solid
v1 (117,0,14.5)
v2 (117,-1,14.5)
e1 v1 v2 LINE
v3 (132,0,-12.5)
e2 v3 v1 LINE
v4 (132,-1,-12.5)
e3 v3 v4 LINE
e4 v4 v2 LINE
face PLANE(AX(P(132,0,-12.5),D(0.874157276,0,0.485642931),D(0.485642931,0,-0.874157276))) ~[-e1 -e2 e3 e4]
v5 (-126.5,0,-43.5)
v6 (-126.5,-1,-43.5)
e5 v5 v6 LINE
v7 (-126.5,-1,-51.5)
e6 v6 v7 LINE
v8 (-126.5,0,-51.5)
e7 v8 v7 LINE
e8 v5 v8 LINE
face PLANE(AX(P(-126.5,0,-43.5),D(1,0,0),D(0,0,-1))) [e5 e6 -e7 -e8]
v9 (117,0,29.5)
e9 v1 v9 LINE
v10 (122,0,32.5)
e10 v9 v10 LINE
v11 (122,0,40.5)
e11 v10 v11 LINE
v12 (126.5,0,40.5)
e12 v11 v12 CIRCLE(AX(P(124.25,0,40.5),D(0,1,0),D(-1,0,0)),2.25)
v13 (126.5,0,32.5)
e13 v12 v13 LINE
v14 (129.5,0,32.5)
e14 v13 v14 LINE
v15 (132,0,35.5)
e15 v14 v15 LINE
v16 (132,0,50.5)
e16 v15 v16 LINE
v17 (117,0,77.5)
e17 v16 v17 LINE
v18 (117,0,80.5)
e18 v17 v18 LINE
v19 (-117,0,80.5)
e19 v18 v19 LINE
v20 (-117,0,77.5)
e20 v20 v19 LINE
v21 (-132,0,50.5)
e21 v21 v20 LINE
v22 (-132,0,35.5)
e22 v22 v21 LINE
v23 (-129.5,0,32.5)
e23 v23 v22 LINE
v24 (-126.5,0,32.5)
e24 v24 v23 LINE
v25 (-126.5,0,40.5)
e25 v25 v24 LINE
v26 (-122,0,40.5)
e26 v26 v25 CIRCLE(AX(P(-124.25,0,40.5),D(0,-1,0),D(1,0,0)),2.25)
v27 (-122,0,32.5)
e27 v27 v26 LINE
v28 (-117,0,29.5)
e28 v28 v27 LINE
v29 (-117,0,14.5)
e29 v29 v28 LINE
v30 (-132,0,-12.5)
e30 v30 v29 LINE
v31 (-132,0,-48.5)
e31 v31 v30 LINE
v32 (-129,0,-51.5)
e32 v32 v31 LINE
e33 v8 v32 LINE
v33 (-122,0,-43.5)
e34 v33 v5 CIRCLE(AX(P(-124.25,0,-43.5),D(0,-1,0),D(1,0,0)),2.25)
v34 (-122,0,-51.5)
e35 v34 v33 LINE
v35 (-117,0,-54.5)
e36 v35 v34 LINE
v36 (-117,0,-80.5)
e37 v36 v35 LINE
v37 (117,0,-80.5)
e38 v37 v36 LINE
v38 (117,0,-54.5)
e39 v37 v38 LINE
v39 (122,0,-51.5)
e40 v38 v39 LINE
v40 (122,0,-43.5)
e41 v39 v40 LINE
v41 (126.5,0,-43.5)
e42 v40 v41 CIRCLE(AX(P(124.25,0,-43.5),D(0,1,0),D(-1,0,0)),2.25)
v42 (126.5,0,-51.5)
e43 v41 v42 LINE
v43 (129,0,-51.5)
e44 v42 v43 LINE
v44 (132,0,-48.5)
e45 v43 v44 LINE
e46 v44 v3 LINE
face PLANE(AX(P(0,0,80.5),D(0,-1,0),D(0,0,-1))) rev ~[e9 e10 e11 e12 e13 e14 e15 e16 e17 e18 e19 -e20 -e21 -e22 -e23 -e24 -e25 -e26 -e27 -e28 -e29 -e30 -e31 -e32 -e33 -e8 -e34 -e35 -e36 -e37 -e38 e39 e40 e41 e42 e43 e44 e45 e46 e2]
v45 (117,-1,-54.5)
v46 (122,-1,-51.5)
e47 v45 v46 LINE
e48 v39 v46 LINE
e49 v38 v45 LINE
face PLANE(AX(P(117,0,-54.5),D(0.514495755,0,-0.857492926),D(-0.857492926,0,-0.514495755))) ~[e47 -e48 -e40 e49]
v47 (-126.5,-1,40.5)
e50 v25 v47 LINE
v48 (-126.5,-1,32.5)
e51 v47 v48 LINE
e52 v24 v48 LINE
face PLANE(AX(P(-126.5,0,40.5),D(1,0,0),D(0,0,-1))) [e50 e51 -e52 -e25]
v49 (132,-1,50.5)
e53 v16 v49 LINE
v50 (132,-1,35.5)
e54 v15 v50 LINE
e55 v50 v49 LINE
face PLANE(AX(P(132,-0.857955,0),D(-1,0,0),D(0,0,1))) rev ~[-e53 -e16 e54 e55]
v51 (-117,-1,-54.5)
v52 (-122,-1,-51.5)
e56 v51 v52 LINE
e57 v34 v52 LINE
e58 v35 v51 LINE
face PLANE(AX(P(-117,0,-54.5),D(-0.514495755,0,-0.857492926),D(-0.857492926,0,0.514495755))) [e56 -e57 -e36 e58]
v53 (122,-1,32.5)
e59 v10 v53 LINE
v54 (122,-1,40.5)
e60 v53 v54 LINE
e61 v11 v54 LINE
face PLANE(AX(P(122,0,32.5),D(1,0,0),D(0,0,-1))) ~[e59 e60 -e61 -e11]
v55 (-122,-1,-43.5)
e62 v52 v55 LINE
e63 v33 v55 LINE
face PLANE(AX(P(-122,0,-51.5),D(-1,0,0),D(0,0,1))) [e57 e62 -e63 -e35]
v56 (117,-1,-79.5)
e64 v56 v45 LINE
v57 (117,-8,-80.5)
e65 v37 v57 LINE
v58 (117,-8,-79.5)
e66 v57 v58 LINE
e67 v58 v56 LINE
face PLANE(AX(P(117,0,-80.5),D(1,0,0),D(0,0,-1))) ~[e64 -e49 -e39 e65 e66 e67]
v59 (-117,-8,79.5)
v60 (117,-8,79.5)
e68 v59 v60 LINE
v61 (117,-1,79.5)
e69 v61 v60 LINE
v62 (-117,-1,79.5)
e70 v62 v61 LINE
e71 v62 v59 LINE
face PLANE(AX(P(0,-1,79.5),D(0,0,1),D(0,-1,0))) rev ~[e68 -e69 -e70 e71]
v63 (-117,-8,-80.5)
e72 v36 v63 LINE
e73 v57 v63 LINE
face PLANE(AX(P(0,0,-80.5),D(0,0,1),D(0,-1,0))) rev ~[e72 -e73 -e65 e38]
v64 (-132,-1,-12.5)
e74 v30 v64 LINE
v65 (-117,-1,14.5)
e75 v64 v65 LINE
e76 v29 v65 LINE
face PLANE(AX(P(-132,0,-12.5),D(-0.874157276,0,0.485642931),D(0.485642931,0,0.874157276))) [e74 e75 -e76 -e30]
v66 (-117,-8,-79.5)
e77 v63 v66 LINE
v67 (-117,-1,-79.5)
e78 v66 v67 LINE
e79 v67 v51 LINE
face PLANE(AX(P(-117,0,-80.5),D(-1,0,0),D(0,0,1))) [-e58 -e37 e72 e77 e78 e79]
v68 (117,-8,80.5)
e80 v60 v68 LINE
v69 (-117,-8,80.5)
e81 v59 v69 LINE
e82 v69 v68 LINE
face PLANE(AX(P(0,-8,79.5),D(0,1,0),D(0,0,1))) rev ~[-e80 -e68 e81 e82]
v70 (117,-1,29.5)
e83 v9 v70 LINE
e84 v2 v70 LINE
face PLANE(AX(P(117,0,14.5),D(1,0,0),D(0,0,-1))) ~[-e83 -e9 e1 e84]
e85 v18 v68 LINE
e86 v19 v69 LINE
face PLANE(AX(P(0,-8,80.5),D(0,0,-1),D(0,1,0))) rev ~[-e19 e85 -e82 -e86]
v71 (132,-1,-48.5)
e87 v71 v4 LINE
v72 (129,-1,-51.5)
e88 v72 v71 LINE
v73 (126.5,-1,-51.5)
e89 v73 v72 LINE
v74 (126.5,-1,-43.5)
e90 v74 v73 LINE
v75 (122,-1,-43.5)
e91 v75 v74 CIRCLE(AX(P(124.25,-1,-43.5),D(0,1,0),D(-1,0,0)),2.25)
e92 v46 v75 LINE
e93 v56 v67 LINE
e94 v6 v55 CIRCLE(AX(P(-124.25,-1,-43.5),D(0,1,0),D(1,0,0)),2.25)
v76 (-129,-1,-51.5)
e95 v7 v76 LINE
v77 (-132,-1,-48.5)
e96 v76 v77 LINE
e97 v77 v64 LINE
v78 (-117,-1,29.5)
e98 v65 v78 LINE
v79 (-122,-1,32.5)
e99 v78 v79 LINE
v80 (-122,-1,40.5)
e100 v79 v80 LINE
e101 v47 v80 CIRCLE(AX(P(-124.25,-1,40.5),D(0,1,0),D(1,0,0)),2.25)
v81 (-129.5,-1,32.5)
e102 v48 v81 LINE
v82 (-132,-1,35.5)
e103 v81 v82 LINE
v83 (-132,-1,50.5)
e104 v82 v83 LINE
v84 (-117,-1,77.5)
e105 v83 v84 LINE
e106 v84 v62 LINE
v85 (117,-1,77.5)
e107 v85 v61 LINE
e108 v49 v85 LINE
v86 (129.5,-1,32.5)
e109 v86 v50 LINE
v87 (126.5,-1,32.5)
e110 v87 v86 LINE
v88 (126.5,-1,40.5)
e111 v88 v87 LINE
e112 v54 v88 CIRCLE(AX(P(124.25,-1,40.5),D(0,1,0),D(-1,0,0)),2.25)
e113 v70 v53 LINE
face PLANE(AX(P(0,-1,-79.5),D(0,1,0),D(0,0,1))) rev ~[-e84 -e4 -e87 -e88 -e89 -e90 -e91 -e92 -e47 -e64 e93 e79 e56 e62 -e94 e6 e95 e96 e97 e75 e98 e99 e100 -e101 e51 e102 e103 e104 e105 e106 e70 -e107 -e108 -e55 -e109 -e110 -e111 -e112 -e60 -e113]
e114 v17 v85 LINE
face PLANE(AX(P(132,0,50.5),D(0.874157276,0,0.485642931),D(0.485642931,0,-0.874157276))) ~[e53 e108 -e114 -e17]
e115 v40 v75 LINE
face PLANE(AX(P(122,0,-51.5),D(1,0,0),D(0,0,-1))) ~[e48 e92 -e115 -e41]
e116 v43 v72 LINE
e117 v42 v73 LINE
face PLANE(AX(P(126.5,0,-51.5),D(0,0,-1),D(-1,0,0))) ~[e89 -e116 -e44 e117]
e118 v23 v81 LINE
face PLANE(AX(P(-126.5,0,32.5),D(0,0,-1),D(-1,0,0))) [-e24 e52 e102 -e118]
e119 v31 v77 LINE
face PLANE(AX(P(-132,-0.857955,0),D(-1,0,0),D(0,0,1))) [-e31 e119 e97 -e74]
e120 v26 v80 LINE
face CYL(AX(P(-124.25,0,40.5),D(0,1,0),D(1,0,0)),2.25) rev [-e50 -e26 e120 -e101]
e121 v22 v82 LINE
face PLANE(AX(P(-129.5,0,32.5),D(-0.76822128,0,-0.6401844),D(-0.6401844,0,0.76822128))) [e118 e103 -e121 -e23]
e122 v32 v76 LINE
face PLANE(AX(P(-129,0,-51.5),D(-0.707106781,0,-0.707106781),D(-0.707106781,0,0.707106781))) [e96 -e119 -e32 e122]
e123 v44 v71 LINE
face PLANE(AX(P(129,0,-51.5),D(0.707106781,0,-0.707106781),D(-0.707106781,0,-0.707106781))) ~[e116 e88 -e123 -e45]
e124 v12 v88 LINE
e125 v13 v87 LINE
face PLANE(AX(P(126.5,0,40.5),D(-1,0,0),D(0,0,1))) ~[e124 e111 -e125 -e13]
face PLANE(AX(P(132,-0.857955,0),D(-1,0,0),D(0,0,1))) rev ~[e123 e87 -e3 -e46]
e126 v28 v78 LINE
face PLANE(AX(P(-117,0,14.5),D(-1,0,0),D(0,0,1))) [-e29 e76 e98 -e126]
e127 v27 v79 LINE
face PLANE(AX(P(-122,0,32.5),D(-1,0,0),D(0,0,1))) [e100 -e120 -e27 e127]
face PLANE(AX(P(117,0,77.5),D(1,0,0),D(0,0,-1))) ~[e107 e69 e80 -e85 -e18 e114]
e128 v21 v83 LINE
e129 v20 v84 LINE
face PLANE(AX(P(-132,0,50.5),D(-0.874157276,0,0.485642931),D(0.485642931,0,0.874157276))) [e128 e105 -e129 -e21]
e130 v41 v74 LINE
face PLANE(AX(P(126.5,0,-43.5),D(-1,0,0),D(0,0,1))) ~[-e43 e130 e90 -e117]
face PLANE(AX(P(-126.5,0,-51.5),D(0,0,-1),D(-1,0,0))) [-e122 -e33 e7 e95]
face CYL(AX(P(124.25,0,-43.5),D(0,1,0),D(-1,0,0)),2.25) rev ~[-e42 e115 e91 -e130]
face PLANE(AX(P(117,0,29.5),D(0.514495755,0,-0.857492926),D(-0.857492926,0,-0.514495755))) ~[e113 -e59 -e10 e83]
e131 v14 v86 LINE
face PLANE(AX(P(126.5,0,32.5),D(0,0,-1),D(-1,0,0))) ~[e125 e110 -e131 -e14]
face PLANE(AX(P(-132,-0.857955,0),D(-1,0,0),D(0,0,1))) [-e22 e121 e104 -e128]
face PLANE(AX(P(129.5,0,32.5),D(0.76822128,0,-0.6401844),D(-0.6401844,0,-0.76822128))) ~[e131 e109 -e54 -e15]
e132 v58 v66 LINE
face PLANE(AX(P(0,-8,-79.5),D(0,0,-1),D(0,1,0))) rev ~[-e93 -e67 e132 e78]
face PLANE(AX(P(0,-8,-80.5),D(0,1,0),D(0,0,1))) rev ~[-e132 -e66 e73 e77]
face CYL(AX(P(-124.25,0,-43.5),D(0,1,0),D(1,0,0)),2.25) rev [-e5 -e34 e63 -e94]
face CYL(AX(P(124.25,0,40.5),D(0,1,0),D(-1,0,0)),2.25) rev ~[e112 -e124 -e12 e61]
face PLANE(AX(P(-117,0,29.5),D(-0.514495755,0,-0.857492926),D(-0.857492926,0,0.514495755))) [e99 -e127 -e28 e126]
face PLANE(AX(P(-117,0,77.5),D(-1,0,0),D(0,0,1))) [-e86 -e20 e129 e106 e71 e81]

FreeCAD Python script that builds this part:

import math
import FreeCAD as App
import Part
import Sketcher

V = App.Vector
Q = App.Units.Quantity

doc = App.newDocument("Part")
body = doc.addObject("PartDesign::Body", "Body")

# Sketch on YZ plane
sketch1 = doc.addObject("Sketcher::SketchObject", "Sketch")
body.addObject(sketch1)
sketch1.AttachmentSupport = (doc.YZ_Plane, [""])
sketch1.MapMode = "FlatFace"
sketch1.addGeometry([
    Part.LineSegment(V(0, 80.5, 0), V(-8, 80.5, 0)),  # 0
    Part.LineSegment(V(-8, 80.5, 0), V(-8, 79.5, 0)),  # 1
    Part.LineSegment(V(-8, 79.5, 0), V(-1, 79.5, 0)),  # 2
    Part.LineSegment(V(-1, 79.5, 0), V(-1, -79.5, 0)),  # 3
    Part.LineSegment(V(-1, -79.5, 0), V(-8, -79.5, 0)),  # 4
    Part.LineSegment(V(-8, -79.5, 0), V(-8, -80.5, 0)),  # 5
    Part.LineSegment(V(-8, -80.5, 0), V(0, -80.5, 0)),  # 6
    Part.LineSegment(V(0, -80.5, 0), V(0, 80.5, 0)),  # 7
], False)
sketch1.addConstraint([
    Sketcher.Constraint("Coincident", 0, 2, 1, 1),
    Sketcher.Constraint("Coincident", 1, 2, 2, 1),
    Sketcher.Constraint("Coincident", 2, 2, 3, 1),
    Sketcher.Constraint("Coincident", 3, 2, 4, 1),
    Sketcher.Constraint("Coincident", 4, 2, 5, 1),
    Sketcher.Constraint("Coincident", 5, 2, 6, 1),
    Sketcher.Constraint("Coincident", 6, 2, 7, 1),
    Sketcher.Constraint("Coincident", 7, 2, 0, 1),
    Sketcher.Constraint("Horizontal", 0),
    Sketcher.Constraint("Vertical", 1),
    Sketcher.Constraint("Horizontal", 2),
    Sketcher.Constraint("Vertical", 3),
    Sketcher.Constraint("Horizontal", 4),
    Sketcher.Constraint("Vertical", 5),
    Sketcher.Constraint("Horizontal", 6),
    Sketcher.Constraint("Vertical", 7),
    Sketcher.Constraint("Symmetric", 6, 2, 7, 2, -1, 1),
    Sketcher.Constraint("Symmetric", 1, 2, 4, 2, -1),
    Sketcher.Constraint("DistanceX", 0, 2, 0, 1, 8.0),
    Sketcher.Constraint("DistanceX", 2, 1, 2, 2, 7.0),
    Sketcher.Constraint("DistanceY", 1, 2, 1, 1, 1.0),
    Sketcher.Constraint("DistanceY", 3, 2, 3, 1, 159.0),
])
pad1 = doc.addObject("PartDesign::Pad", "Pad")
body.addObject(pad1)
pad1.Profile = sketch1
pad1.Length = 264
pad1.Midplane = True

# Sketch on XZ plane
sketch2 = doc.addObject("Sketcher::SketchObject", "Sketch001")
body.addObject(sketch2)
sketch2.AttachmentSupport = (doc.XZ_Plane, [""])
sketch2.MapMode = "FlatFace"
sketch2.addGeometry([
    Part.LineSegment(V(-117, -54.5, 0), V(-117, -80.5, 0)),  # 0
    Part.LineSegment(V(-117, -80.5, 0), V(-140, -80.5, 0)),  # 1
    Part.LineSegment(V(-140, -80.5, 0), V(-140, 80.5, 0)),  # 2
    Part.LineSegment(V(-140, 80.5, 0), V(-117, 80.5, 0)),  # 3
    Part.LineSegment(V(-117, 80.5, 0), V(-117, 77.5, 0)),  # 4
    Part.LineSegment(V(-117, 77.5, 0), V(-132, 50.5, 0)),  # 5
    Part.LineSegment(V(-132, 50.5, 0), V(-132, 35.5, 0)),  # 6
    Part.LineSegment(V(-132, 35.5, 0), V(-129.5, 32.5, 0)),  # 7
    Part.LineSegment(V(-129.5, 32.5, 0), V(-126.5, 32.5, 0)),  # 8
    Part.LineSegment(V(-126.5, 32.5, 0), V(-126.5, 40.5, 0)),  # 9
    Part.ArcOfCircle(Part.Circle(V(-124.2, 40.5, 0), V(0, 0, 1), 2.2), math.radians(0), math.radians(180)),  # 10
    Part.LineSegment(V(-122, 40.5, 0), V(-122, 32.5, 0)),  # 11
    Part.LineSegment(V(-122, 32.5, 0), V(-117, 29.5, 0)),  # 12
    Part.LineSegment(V(-117, 29.5, 0), V(-117, 14.5, 0)),  # 13
    Part.LineSegment(V(-117, 14.5, 0), V(-132, -12.5, 0)),  # 14
    Part.LineSegment(V(-132, -12.5, 0), V(-132, -48.5, 0)),  # 15
    Part.LineSegment(V(-132, -48.5, 0), V(-129, -51.5, 0)),  # 16
    Part.LineSegment(V(-129, -51.5, 0), V(-126.5, -51.5, 0)),  # 17
    Part.LineSegment(V(-126.5, -51.5, 0), V(-126.5, -43.5, 0)),  # 18
    Part.ArcOfCircle(Part.Circle(V(-124.2, -43.5, 0), V(0, 0, 1), 2.2), math.radians(0), math.radians(180)),  # 19
    Part.LineSegment(V(-122, -43.5, 0), V(-122, -51.5, 0)),  # 20
    Part.LineSegment(V(-122, -51.5, 0), V(-117, -54.5, 0)),  # 21
], False)
sketch2.addConstraint([
    Sketcher.Constraint("Coincident", 0, 2, 1, 1),
    Sketcher.Constraint("Coincident", 1, 2, 2, 1),
    Sketcher.Constraint("Coincident", 2, 2, 3, 1),
    Sketcher.Constraint("Coincident", 3, 2, 4, 1),
    Sketcher.Constraint("Coincident", 4, 2, 5, 1),
    Sketcher.Constraint("Coincident", 5, 2, 6, 1),
    Sketcher.Constraint("Coincident", 6, 2, 7, 1),
    Sketcher.Constraint("Coincident", 7, 2, 8, 1),
    Sketcher.Constraint("Coincident", 8, 2, 9, 1),
    Sketcher.Constraint("Tangent", 9, 2, 10, 2),
    Sketcher.Constraint("Tangent", 10, 1, 11, 1),
    Sketcher.Constraint("Coincident", 11, 2, 12, 1),
    Sketcher.Constraint("Coincident", 12, 2, 13, 1),
    Sketcher.Constraint("Coincident", 13, 2, 14, 1),
    Sketcher.Constraint("Coincident", 14, 2, 15, 1),
    Sketcher.Constraint("Coincident", 15, 2, 16, 1),
    Sketcher.Constraint("Coincident", 16, 2, 17, 1),
    Sketcher.Constraint("Coincident", 17, 2, 18, 1),
    Sketcher.Constraint("Tangent", 18, 2, 19, 2),
    Sketcher.Constraint("Tangent", 19, 1, 20, 1),
    Sketcher.Constraint("Coincident", 20, 2, 21, 1),
    Sketcher.Constraint("Coincident", 21, 2, 0, 1),
    Sketcher.Constraint("Vertical", 0),
    Sketcher.Constraint("Horizontal", 1),
    Sketcher.Constraint("Vertical", 2),
    Sketcher.Constraint("Horizontal", 3),
    Sketcher.Constraint("Vertical", 4),
    Sketcher.Constraint("Vertical", 6),
    Sketcher.Constraint("Horizontal", 8),
    Sketcher.Constraint("Vertical", 9),
    Sketcher.Constraint("Vertical", 11),
    Sketcher.Constraint("Vertical", 13),
    Sketcher.Constraint("Vertical", 15),
    Sketcher.Constraint("Horizontal", 17),
    Sketcher.Constraint("Vertical", 18),
    Sketcher.Constraint("Vertical", 20),
    Sketcher.Constraint("Equal", 10, 19),
    Sketcher.Constraint("Symmetric", 0, 2, 3, 2, -1),
    Sketcher.Constraint("Parallel", 5, 14),
    Sketcher.Constraint("Parallel", 12, 21),
    Sketcher.Constraint("Horizontal", 8, 2, 11, 2),
    Sketcher.Constraint("Horizontal", 17, 2, 20, 2),
    Sketcher.Constraint("Vertical", 10, 3, 19, 3),
    Sketcher.Constraint("Vertical", 4, 2, 12, 2),
    Sketcher.Constraint("Vertical", 6, 2, 14, 2),
    Sketcher.Constraint("Equal", 8, 4),
    Sketcher.Constraint("Equal", 6, 13),
    Sketcher.Constraint("Equal", 11, 18),
    Sketcher.Constraint("DistanceX", 1, 2, 1, 1, 23.0),
    Sketcher.Constraint("DistanceX", 8, 1, 8, 2, 3.0),
    Sketcher.Constraint("DistanceY", 0, 2, 0, 1, 26.0),
    Sketcher.Constraint("DistanceY", 2, 1, 2, 2, 161.0),
    Sketcher.Constraint("DistanceY", 6, 2, 6, 1, 15.0),
    Sketcher.Constraint("DistanceY", 9, 1, 9, 2, 8.0),
    Sketcher.Constraint("DistanceY", 15, 2, 15, 1, 36.0),
    Sketcher.Constraint("Angle", 16, Q("-45 deg")),
    Sketcher.Constraint("Radius", 10, 2.25),
    Sketcher.Constraint("DistanceX", 17, 1, 17, 2, 2.5),
    Sketcher.Constraint("DistanceX", 0, 2, -1, 1, 117.0),
    Sketcher.Constraint("DistanceX", 5, 2, -1, 1, 132.0),
    Sketcher.Constraint("DistanceX", 10, 1, -1, 1, 122.0),
    Sketcher.Constraint("DistanceY", 19, 3, 10, 3, 84.0),
    Sketcher.Constraint("DistanceY", 0, 2, 19, 3, 37.0),
])
pocket1 = doc.addObject("PartDesign::Pocket", "Pocket")
body.addObject(pocket1)
pocket1.Profile = sketch2
pocket1.Length = 10
pocket1.Reversed = True
doc.recompute()

mirrored = doc.addObject("PartDesign::Mirrored", "Mirrored")
body.addObject(mirrored)
mirrored.Originals = [pocket1]
mirrored.MirrorPlane = (doc.YZ_Plane, [""])
body.Tip = mirrored

doc.recompute()
